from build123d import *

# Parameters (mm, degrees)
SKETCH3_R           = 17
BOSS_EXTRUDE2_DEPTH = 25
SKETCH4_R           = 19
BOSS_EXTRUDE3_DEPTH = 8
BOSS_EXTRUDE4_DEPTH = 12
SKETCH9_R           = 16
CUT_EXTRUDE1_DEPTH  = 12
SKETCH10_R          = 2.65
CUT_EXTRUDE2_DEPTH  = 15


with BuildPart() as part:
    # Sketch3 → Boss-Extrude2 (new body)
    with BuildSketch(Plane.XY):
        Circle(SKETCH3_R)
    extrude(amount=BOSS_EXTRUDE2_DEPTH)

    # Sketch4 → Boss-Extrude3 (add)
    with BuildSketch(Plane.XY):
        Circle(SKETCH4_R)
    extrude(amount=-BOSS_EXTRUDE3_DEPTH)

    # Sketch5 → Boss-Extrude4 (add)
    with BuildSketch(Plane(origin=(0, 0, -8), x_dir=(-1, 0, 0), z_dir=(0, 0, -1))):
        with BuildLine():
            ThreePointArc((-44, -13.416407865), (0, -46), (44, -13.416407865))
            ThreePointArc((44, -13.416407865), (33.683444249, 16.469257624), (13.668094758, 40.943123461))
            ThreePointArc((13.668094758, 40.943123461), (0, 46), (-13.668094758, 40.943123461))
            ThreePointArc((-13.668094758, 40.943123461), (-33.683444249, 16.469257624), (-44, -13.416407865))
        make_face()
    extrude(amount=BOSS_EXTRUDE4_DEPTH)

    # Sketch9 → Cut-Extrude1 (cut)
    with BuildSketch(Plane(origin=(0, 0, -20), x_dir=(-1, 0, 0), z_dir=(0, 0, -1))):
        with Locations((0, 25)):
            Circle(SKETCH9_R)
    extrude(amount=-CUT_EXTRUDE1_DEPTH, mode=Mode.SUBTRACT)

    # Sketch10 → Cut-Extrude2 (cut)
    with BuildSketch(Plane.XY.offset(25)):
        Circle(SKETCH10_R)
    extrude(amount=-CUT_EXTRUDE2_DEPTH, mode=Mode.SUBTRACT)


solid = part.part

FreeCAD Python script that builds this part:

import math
import FreeCAD as App
import Part
import Sketcher

V = App.Vector

doc = App.newDocument("Part")
params = doc.addObject("Spreadsheet::Sheet", "Params")
for row, (alias, value) in enumerate([
    ("sketch1_diameter", "34 mm"),
    ("pad1_length", "25 mm"),
    ("sketch2_diameter", "38 mm"),
    ("pad2_length", "8 mm"),
    ("sketch3_radius", "46 mm"),
    ("sketch3_radius2", "90 mm"),
    ("sketch3_radius3", "21 mm"),
    ("pad3_length", "12 mm"),
    ("sketch4_diameter", "32 mm"),
    ("pocket1_length", "12 mm"),
    ("sketch5_diameter", "5.3 mm"),
    ("pocket2_length", "15 mm"),
], start=1):
    params.set(f"A{row}", alias)
    params.set(f"B{row}", "=" + value)
    params.setAlias(f"B{row}", alias)

body = doc.addObject("PartDesign::Body", "Body")

sketch1 = doc.addObject("Sketcher::SketchObject", "Sketch")
body.addObject(sketch1)
sketch1.AttachmentSupport = (doc.XY_Plane, [""])
sketch1.MapMode = "FlatFace"
sketch1.addGeometry(Part.Circle(V(0, 0, 0), V(0, 0, 1), 17), False)
sketch1.addConstraint([
    Sketcher.Constraint("Coincident", 0, 3, -1, 1),
    Sketcher.Constraint("Diameter", 0, 34.0),
])
sketch1.setExpression("Constraints[1]", "Params.sketch1_diameter")
pad1 = doc.addObject("PartDesign::Pad", "Pad")
body.addObject(pad1)
pad1.Profile = sketch1
pad1.setExpression("Length", "Params.pad1_length")

sketch2 = doc.addObject("Sketcher::SketchObject", "Sketch001")
body.addObject(sketch2)
sketch2.AttachmentSupport = (doc.XY_Plane, [""])
sketch2.MapMode = "FlatFace"
sketch2.addGeometry(Part.Circle(V(0, 0, 0), V(0, 0, 1), 19), False)
sketch2.addConstraint([
    Sketcher.Constraint("Coincident", 0, 3, -1, 1),
    Sketcher.Constraint("Diameter", 0, 38.0),
])
sketch2.setExpression("Constraints[1]", "Params.sketch2_diameter")
pad2 = doc.addObject("PartDesign::Pad", "Pad001")
body.addObject(pad2)
pad2.Profile = sketch2
pad2.setExpression("Length", "Params.pad2_length")
pad2.Reversed = True

sketch3 = doc.addObject("Sketcher::SketchObject", "Sketch002")
body.addObject(sketch3)
sketch3.AttachmentSupport = (doc.XY_Plane, [""])
sketch3.MapMode = "FlatFace"
sketch3.AttachmentOffset = App.Placement(V(0, 0, -8), App.Rotation())
sketch3.addGeometry([
    Part.ArcOfCircle(Part.Circle(V(0, 0, 0), V(0, 0, 1), 46), math.radians(-163.042574), math.radians(-16.957426)),
    Part.ArcOfCircle(Part.Circle(V(44.909454, -27.384549, 0), V(0, 0, 1), 90), math.radians(130.606599), math.radians(171.071514)),
    Part.ArcOfCircle(Part.Circle(V(0, 25, 0), V(0, 0, 1), 21), math.radians(49.393401), math.radians(130.606599)),
    Part.ArcOfCircle(Part.Circle(V(-44.909454, -27.384549, 0), V(0, 0, 1), 90), math.radians(8.928486), math.radians(49.393401)),
], False)
sketch3.addConstraint([
    Sketcher.Constraint("Coincident", 0, 1, 1, 2),
    Sketcher.Constraint("Tangent", 1, 1, 2, 2),
    Sketcher.Constraint("Tangent", 2, 1, 3, 2),
    Sketcher.Constraint("Coincident", 3, 1, 0, 2),
    Sketcher.Constraint("Coincident", 0, 3, -1, 1),
    Sketcher.Constraint("Equal", 1, 3),
    Sketcher.Constraint("Symmetric", 1, 3, 3, 3, -2),
    Sketcher.Constraint("Radius", 0, 46.0),
    Sketcher.Constraint("Radius", 1, 90.0),
    Sketcher.Constraint("Radius", 2, 21.0),
    Sketcher.Constraint("DistanceY", -1, 1, 2, 3, 25.0),
    Sketcher.Constraint("DistanceX", 0, 1, -1, 1, 44.0),
])
sketch3.setExpression("Constraints[7]", "Params.sketch3_radius")
sketch3.setExpression("Constraints[8]", "Params.sketch3_radius2")
sketch3.setExpression("Constraints[9]", "Params.sketch3_radius3")
pad3 = doc.addObject("PartDesign::Pad", "Pad002")
body.addObject(pad3)
pad3.Profile = sketch3
pad3.setExpression("Length", "Params.pad3_length")
pad3.Reversed = True

sketch4 = doc.addObject("Sketcher::SketchObject", "Sketch003")
body.addObject(sketch4)
sketch4.AttachmentSupport = (doc.XY_Plane, [""])
sketch4.MapMode = "FlatFace"
sketch4.AttachmentOffset = App.Placement(V(0, 0, -20), App.Rotation())
sketch4.addGeometry(Part.Circle(V(0, 25, 0), V(0, 0, 1), 16), False)
sketch4.addConstraint([
    Sketcher.Constraint("PointOnObject", 0, 3, -2),
    Sketcher.Constraint("Diameter", 0, 32.0),
    Sketcher.Constraint("DistanceY", -1, 1, 0, 3, 25.0),
])
sketch4.setExpression("Constraints[1]", "Params.sketch4_diameter")
pocket1 = doc.addObject("PartDesign::Pocket", "Pocket")
body.addObject(pocket1)
pocket1.Profile = sketch4
pocket1.setExpression("Length", "Params.pocket1_length")
pocket1.Reversed = True

sketch5 = doc.addObject("Sketcher::SketchObject", "Sketch004")
body.addObject(sketch5)
sketch5.AttachmentSupport = (doc.XY_Plane, [""])
sketch5.MapMode = "FlatFace"
sketch5.AttachmentOffset = App.Placement(V(0, 0, 25), App.Rotation())
sketch5.addGeometry(Part.Circle(V(0, 0, 0), V(0, 0, 1), 2.65), False)
sketch5.addConstraint([
    Sketcher.Constraint("Coincident", 0, 3, -1, 1),
    Sketcher.Constraint("Diameter", 0, 5.3),
])
sketch5.setExpression("Constraints[1]", "Params.sketch5_diameter")
pocket2 = doc.addObject("PartDesign::Pocket", "Pocket001")
body.addObject(pocket2)
pocket2.Profile = sketch5
pocket2.setExpression("Length", "Params.pocket2_length")

doc.recompute()
